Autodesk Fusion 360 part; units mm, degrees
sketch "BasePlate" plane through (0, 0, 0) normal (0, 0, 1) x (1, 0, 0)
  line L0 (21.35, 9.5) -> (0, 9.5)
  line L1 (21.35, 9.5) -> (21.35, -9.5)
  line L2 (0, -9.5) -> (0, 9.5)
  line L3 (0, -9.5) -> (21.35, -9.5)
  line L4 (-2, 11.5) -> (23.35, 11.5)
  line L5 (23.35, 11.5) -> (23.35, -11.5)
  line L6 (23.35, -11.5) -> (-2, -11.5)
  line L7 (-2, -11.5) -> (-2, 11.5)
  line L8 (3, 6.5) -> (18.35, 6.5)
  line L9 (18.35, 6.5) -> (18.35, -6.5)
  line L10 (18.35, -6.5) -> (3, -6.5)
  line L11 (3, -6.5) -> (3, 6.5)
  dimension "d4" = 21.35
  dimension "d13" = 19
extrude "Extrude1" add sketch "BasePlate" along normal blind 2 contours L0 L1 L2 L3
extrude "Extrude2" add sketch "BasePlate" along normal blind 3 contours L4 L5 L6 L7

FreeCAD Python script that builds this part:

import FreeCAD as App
import Part
import Sketcher

V = App.Vector


def add_polygon(sketch, points):
    """Adds a closed chain of lines whose ends are joined by coincident constraints."""
    first, n = sketch.GeometryCount, len(points)
    for a, b in zip(points, points[1:] + points[:1]):
        sketch.addGeometry(Part.LineSegment(App.Vector(*a, 0), App.Vector(*b, 0)), False)
    for i in range(n):
        sketch.addConstraint(Sketcher.Constraint("Coincident", first + i, 2, first + (i + 1) % n, 1))

doc = App.newDocument("Part")
body = doc.addObject("PartDesign::Body", "Body")

# Sketch on XY plane
sketch1 = doc.addObject("Sketcher::SketchObject", "Sketch")
body.addObject(sketch1)
sketch1.AttachmentSupport = (doc.XY_Plane, [""])
sketch1.MapMode = "FlatFace"
add_polygon(sketch1, [(21, -10), (21, 10), (0, 10), (0, -10)])  # lines 0-3
add_polygon(sketch1, [(3, -6), (3, 6), (18, 6), (18, -6)])  # lines 4-7
sketch1.addConstraint([
    Sketcher.Constraint("Vertical", 0),
    Sketcher.Constraint("Horizontal", 1),
    Sketcher.Constraint("Vertical", 2),
    Sketcher.Constraint("Horizontal", 3),
    Sketcher.Constraint("Vertical", 4),
    Sketcher.Constraint("Horizontal", 5),
    Sketcher.Constraint("Vertical", 6),
    Sketcher.Constraint("Horizontal", 7),
    Sketcher.Constraint("Symmetric", 1, 2, 2, 2, -1, 1),
    Sketcher.Constraint("DistanceY", 0, 1, 0, 2, 19.0),
    Sketcher.Constraint("DistanceX", 1, 2, 1, 1, 21.35),
    Sketcher.Constraint("DistanceY", 4, 1, 4, 2, 13.0),
    Sketcher.Constraint("DistanceX", -1, 1, 4, 2, 3.0),
    Sketcher.Constraint("DistanceY", 4, 2, 1, 2, 3.0),
    Sketcher.Constraint("DistanceX", 5, 2, 0, 2, 3.0),
])
pad1 = doc.addObject("PartDesign::Pad", "Pad")
body.addObject(pad1)
pad1.Profile = sketch1
pad1.Length = 2

# Sketch on XY plane
sketch2 = doc.addObject("Sketcher::SketchObject", "Sketch001")
body.addObject(sketch2)
sketch2.AttachmentSupport = (doc.XY_Plane, [""])
sketch2.MapMode = "FlatFace"
add_polygon(sketch2, [(23, 12), (-2, 12), (-2, -12), (23, -12)])  # lines 0-3
add_polygon(sketch2, [(0, 10), (21, 10), (21, -10), (0, -10)])  # lines 4-7
sketch2.addConstraint([
    Sketcher.Constraint("Horizontal", 0),
    Sketcher.Constraint("Vertical", 1),
    Sketcher.Constraint("Horizontal", 2),
    Sketcher.Constraint("Vertical", 3),
    Sketcher.Constraint("Horizontal", 4),
    Sketcher.Constraint("Vertical", 5),
    Sketcher.Constraint("Horizontal", 6),
    Sketcher.Constraint("Vertical", 7),
    Sketcher.Constraint("Symmetric", 6, 2, 7, 2, -1, 1),
    Sketcher.Constraint("DistanceY", 5, 2, 5, 1, 19.0),
    Sketcher.Constraint("DistanceX", 4, 1, 4, 2, 21.35),
    Sketcher.Constraint("DistanceY", 1, 2, 1, 1, 23.0),
    Sketcher.Constraint("DistanceX", 0, 2, -1, 1, 2.0),
    Sketcher.Constraint("DistanceX", 4, 2, 3, 2, 2.0),
    Sketcher.Constraint("DistanceY", 4, 2, 3, 2, 2.0),
])
pad2 = doc.addObject("PartDesign::Pad", "Pad001")
body.addObject(pad2)
pad2.Profile = sketch2
pad2.Length = 3

doc.recompute()
